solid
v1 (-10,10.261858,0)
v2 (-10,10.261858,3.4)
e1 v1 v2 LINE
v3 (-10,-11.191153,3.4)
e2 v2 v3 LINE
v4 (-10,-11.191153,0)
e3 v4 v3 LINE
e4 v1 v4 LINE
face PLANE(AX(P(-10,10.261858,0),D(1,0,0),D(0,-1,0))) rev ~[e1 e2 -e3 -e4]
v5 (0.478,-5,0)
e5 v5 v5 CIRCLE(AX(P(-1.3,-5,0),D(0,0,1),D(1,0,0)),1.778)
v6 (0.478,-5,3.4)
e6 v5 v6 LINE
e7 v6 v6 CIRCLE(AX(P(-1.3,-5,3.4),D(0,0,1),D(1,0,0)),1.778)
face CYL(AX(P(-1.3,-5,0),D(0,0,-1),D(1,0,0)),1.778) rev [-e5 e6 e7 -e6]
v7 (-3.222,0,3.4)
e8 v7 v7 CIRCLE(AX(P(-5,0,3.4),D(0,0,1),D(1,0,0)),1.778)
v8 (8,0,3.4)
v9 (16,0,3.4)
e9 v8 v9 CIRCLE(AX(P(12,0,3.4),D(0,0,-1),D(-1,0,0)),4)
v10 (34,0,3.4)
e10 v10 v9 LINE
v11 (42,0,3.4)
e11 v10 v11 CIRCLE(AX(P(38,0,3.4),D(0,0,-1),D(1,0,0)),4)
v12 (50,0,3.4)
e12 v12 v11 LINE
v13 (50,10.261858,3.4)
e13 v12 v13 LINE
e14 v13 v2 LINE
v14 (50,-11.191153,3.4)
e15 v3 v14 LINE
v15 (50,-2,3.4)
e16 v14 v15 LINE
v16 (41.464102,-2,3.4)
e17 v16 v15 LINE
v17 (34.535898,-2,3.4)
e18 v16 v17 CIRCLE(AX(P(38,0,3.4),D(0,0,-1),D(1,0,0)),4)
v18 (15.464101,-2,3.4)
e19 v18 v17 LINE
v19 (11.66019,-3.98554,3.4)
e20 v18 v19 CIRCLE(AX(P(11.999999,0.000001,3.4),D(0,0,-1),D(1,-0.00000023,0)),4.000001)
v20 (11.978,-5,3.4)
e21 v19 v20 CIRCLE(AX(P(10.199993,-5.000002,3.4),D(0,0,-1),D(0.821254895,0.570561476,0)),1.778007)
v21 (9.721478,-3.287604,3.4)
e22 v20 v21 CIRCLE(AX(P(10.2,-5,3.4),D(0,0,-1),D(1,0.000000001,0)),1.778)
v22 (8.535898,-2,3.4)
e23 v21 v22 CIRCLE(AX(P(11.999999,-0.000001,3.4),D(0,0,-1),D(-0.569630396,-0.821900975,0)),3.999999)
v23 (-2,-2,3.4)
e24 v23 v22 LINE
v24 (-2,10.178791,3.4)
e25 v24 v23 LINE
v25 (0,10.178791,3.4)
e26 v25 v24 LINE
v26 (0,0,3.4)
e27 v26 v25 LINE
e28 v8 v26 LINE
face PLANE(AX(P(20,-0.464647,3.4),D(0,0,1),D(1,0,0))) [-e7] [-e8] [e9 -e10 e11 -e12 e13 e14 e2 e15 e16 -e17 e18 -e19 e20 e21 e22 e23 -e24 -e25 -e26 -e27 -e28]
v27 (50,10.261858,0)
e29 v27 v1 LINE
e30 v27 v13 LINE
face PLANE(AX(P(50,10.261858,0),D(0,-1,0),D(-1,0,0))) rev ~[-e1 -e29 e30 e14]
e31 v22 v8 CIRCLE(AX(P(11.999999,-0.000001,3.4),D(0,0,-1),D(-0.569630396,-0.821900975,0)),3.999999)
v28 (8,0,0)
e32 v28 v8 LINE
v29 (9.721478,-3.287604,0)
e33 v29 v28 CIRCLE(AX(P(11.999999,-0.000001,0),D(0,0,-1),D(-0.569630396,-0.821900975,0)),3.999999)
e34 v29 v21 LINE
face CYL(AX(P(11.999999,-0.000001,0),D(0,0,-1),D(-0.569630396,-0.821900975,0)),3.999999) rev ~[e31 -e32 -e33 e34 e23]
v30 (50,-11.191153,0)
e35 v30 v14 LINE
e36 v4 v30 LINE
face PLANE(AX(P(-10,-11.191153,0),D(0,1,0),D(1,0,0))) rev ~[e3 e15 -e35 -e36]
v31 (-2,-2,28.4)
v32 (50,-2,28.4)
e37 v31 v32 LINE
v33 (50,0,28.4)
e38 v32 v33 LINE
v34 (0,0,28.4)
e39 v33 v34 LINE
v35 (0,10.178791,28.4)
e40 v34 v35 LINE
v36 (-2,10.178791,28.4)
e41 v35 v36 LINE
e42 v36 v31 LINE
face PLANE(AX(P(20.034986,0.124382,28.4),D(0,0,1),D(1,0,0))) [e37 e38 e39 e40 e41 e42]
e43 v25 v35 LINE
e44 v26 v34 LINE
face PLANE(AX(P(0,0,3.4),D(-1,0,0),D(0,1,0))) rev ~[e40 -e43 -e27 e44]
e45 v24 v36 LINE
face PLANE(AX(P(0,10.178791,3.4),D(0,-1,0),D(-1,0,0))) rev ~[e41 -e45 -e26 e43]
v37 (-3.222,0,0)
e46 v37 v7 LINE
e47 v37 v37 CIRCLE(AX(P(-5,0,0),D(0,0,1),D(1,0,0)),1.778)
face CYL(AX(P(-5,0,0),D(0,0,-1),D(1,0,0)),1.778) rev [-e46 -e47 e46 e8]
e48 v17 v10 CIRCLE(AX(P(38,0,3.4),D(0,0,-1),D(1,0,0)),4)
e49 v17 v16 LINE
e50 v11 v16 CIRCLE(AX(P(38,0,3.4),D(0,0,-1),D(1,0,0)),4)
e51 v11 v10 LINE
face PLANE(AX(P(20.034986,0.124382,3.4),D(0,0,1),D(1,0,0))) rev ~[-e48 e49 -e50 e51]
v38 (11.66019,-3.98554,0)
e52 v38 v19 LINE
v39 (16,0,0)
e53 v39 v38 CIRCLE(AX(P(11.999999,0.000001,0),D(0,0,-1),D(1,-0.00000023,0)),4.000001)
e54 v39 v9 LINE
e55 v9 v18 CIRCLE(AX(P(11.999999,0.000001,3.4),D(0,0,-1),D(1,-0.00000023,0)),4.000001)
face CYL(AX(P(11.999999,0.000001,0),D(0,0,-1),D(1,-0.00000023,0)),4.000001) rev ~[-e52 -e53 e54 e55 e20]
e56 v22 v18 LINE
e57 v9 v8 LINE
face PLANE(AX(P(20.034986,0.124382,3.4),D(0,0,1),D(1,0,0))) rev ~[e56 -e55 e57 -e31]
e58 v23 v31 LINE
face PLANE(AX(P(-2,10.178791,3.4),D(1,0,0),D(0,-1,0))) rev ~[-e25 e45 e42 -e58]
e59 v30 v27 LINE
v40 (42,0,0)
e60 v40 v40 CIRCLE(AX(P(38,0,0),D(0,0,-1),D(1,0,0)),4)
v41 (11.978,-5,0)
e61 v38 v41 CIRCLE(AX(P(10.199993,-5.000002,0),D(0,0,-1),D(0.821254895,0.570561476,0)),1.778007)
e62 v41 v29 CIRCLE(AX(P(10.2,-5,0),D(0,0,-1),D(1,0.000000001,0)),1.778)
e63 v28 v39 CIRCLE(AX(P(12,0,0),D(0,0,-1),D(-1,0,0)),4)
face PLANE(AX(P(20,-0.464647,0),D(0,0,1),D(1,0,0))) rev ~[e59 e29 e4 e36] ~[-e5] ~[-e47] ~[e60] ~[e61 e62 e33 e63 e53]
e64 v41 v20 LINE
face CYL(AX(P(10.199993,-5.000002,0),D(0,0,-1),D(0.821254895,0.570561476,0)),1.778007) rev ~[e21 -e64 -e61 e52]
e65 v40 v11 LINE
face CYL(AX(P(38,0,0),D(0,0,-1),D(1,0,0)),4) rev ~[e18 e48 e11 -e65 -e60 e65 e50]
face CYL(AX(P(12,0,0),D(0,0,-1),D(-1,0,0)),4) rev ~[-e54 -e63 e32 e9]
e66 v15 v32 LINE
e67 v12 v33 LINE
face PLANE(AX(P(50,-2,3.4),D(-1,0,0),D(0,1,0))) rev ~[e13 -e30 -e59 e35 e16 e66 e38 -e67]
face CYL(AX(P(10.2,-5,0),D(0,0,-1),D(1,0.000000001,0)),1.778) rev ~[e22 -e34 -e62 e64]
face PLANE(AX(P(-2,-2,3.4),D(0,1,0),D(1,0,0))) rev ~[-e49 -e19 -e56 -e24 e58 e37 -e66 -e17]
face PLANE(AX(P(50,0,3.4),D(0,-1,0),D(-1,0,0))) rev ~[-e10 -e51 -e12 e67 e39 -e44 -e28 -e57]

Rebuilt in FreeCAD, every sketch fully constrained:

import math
import FreeCAD as App
import Part
import Sketcher
Q = App.Units.Quantity


def add_polygon(sketch, points):
    """Adds a closed chain of lines whose ends are joined by coincident constraints."""
    first, n = sketch.GeometryCount, len(points)
    for a, b in zip(points, points[1:] + points[:1]):
        sketch.addGeometry(Part.LineSegment(App.Vector(*a, 0), App.Vector(*b, 0)), False)
    for i in range(n):
        sketch.addConstraint(Sketcher.Constraint("Coincident", first + i, 2, first + (i + 1) % n, 1))

doc = App.newDocument("Part")
params = doc.addObject("Spreadsheet::Sheet", "Params")
for row, (alias, value) in enumerate([
    ("sketch1_diameter", "8 mm"),
    ("sketch1_width", "60 mm"),
    ("pad1_length", "3.4 mm"),
    ("sketch2_width", "50 mm"),
    ("sketch2_width2", "2 mm"),
    ("pad2_length", "25 mm"),
], start=1):
    params.set(f"A{row}", alias)
    params.set(f"B{row}", "=" + value)
    params.setAlias(f"B{row}", alias)

body = doc.addObject("PartDesign::Body", "Body")

sketch1 = doc.addObject("Sketcher::SketchObject", "Sketch")
body.addObject(sketch1)
sketch1.AttachmentSupport = (doc.XY_Plane, [""])
sketch1.MapMode = "FlatFace"
add_polygon(sketch1, [(50, 10.261858), (-10, 10.261858), (-10, -11.191153), (50, -11.191153)])
sketch1.addGeometry(Part.Circle(App.Vector(-1.3, -5, 0), App.Vector(0, 0, 1), 1.778), False)
sketch1.addGeometry(Part.Circle(App.Vector(-5, 0, 0), App.Vector(0, 0, 1), 1.778), False)
sketch1.addGeometry(Part.ArcOfCircle(Part.Circle(App.Vector(11.999999, -0.000001, 0), App.Vector(0, 0, 1), 3.999999), math.radians(179.999987), math.radians(235.275544)), False)
sketch1.addGeometry(Part.ArcOfCircle(Part.Circle(App.Vector(12, 0, 0), App.Vector(0, 0, 1), 4), math.radians(0), math.radians(180)), False)
sketch1.addGeometry(Part.ArcOfCircle(Part.Circle(App.Vector(11.999999, 0.000001, 0), App.Vector(0, 0, 1), 4.000001), math.radians(-94.87328), math.radians(-0.000013)), False)
sketch1.addGeometry(Part.ArcOfCircle(Part.Circle(App.Vector(10.199993, -5.000002, 0), App.Vector(0, 0, 1), 1.778007), math.radians(0.000069), math.radians(34.789388)), False)
sketch1.addGeometry(Part.ArcOfCircle(Part.Circle(App.Vector(10.2, -5, 0), App.Vector(0, 0, 1), 1.778), math.radians(105.612806), math.radians(360)), False)
sketch1.addGeometry(Part.Circle(App.Vector(38, 0, 0), App.Vector(0, 0, 1), 4), False)
sketch1.addConstraint(Sketcher.Constraint("Tangent", 6, 1, 7, 2))
sketch1.addConstraint(Sketcher.Constraint("Tangent", 7, 1, 8, 2))
sketch1.addConstraint(Sketcher.Constraint("Coincident", 8, 1, 9, 2))
sketch1.addConstraint(Sketcher.Constraint("Tangent", 9, 1, 10, 2))
sketch1.addConstraint(Sketcher.Constraint("Coincident", 10, 1, 6, 2))
sketch1.addConstraint(Sketcher.Constraint("Horizontal", 0))
sketch1.addConstraint(Sketcher.Constraint("Vertical", 1))
sketch1.addConstraint(Sketcher.Constraint("Horizontal", 2))
sketch1.addConstraint(Sketcher.Constraint("Vertical", 3))
sketch1.addConstraint(Sketcher.Constraint("Equal", 4, 5))
sketch1.addConstraint(Sketcher.Constraint("Equal", 6, 7))
sketch1.addConstraint(Sketcher.Constraint("Equal", 7, 8))
sketch1.addConstraint(Sketcher.Constraint("Equal", 5, 10))
sketch1.addConstraint(Sketcher.Constraint("Equal", 8, 11))
sketch1.addConstraint(Sketcher.Constraint("PointOnObject", 5, 3, -1))
sketch1.addConstraint(Sketcher.Constraint("PointOnObject", 6, 3, -1))
sketch1.addConstraint(Sketcher.Constraint("PointOnObject", 11, 3, -1))
sketch1.addConstraint(Sketcher.Constraint("PointOnObject", 6, 1, -1))
sketch1.addConstraint(Sketcher.Constraint("PointOnObject", 7, 1, -1))
sketch1.addConstraint(Sketcher.Constraint("Horizontal", 4, 3, 10, 3))
sketch1.addConstraint(Sketcher.Constraint("Horizontal", 10, 3, 9, 1))
sketch1.addConstraint(Sketcher.Constraint("Diameter", 11, Q("8 mm")))
sketch1.addConstraint(Sketcher.Constraint("DistanceX", 0, 2, 0, 1, Q("60 mm")))
sketch1.addConstraint(Sketcher.Constraint("Diameter", 4, Q("3.556 mm")))
sketch1.addConstraint(Sketcher.Constraint("DistanceY", 4, 3, -1, 1, Q("5 mm")))
sketch1.addConstraint(Sketcher.Constraint("DistanceX", 5, 3, -1, 1, Q("5 mm")))
sketch1.addConstraint(Sketcher.Constraint("DistanceX", -1, 1, 6, 3, Q("11.999999 mm")))
sketch1.addConstraint(Sketcher.Constraint("DistanceX", -1, 1, 11, 3, Q("38 mm")))
sketch1.addConstraint(Sketcher.Constraint("DistanceX", 0, 2, -1, 1, Q("10 mm")))
sketch1.addConstraint(Sketcher.Constraint("DistanceX", 4, 3, -1, 1, Q("1.3 mm")))
sketch1.addConstraint(Sketcher.Constraint("DistanceX", -1, 1, 10, 3, Q("10.2 mm")))
sketch1.addConstraint(Sketcher.Constraint("Radius", 9, Q("1.778007 mm")))
sketch1.addConstraint(Sketcher.Constraint("DistanceY", 1, 2, 1, 1, Q("21.453011 mm")))
sketch1.addConstraint(Sketcher.Constraint("DistanceY", 6, 3, 0, 2, Q("10.261859 mm")))
sketch1.setExpression("Constraints[25]", "Params.sketch1_diameter")
sketch1.setExpression("Constraints[26]", "Params.sketch1_width")
pad1 = doc.addObject("PartDesign::Pad", "Pad")
body.addObject(pad1)
pad1.Profile = sketch1
pad1.setExpression("Length", "Params.pad1_length")

sketch2 = doc.addObject("Sketcher::SketchObject", "Sketch001")
body.addObject(sketch2)
sketch2.AttachmentSupport = (doc.XY_Plane, [""])
sketch2.MapMode = "FlatFace"
sketch2.AttachmentOffset = App.Placement(App.Vector(0, 0, 3.4), App.Rotation())
add_polygon(sketch2, [(50, 0), (0, 0), (0, 10.178791), (-2, 10.178791), (-2, -2), (50, -2)])
sketch2.addConstraint(Sketcher.Constraint("Horizontal", 0))
sketch2.addConstraint(Sketcher.Constraint("Vertical", 1))
sketch2.addConstraint(Sketcher.Constraint("Horizontal", 2))
sketch2.addConstraint(Sketcher.Constraint("Vertical", 3))
sketch2.addConstraint(Sketcher.Constraint("Horizontal", 4))
sketch2.addConstraint(Sketcher.Constraint("Vertical", 5))
sketch2.addConstraint(Sketcher.Constraint("Coincident", 0, 2, -1, 1))
sketch2.addConstraint(Sketcher.Constraint("Equal", 2, 5))
sketch2.addConstraint(Sketcher.Constraint("DistanceX", 0, 2, 0, 1, Q("50 mm")))
sketch2.addConstraint(Sketcher.Constraint("DistanceX", 2, 2, 2, 1, Q("2 mm")))
sketch2.addConstraint(Sketcher.Constraint("DistanceY", 1, 1, 1, 2, Q("10.178791 mm")))
sketch2.setExpression("Constraints[14]", "Params.sketch2_width")
sketch2.setExpression("Constraints[15]", "Params.sketch2_width2")
pad2 = doc.addObject("PartDesign::Pad", "Pad001")
body.addObject(pad2)
pad2.Profile = sketch2
pad2.setExpression("Length", "Params.pad2_length")

doc.recompute()
